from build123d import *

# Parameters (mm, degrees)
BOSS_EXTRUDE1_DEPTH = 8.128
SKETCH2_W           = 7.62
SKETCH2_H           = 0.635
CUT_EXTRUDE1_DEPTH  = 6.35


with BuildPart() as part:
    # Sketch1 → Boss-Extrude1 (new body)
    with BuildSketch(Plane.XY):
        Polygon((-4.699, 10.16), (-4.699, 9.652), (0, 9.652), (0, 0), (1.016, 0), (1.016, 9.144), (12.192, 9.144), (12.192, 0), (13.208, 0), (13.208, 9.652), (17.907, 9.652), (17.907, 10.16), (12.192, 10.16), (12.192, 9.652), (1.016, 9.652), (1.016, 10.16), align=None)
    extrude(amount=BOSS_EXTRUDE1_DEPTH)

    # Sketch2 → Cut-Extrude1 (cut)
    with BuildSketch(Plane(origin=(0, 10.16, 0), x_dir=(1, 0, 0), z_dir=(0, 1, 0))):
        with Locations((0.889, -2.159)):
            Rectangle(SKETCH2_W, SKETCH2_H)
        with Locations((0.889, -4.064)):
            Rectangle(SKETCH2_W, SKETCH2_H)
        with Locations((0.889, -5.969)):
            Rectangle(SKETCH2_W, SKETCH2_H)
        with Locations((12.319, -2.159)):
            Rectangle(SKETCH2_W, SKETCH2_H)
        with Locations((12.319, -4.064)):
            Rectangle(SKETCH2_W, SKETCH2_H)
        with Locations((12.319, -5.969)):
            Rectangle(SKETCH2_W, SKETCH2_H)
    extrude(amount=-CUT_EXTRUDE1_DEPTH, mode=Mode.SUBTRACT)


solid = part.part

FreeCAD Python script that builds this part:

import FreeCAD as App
import Part
import Sketcher
Q = App.Units.Quantity

doc = App.newDocument("Part")
body = doc.addObject("PartDesign::Body", "Body")

# Sketch on XY plane
sketch1 = body.newObject("Sketcher::SketchObject", "Sketch")
sketch1.AttachmentSupport = (doc.getObject("XY_Plane"), [""])
sketch1.MapMode = "FlatFace"
sketch1.addGeometry([
    Part.LineSegment(App.Vector(-4.699, 10.16, 0), App.Vector(-4.699, 9.652, 0)),  # 0
    Part.LineSegment(App.Vector(-4.699, 9.652, 0), App.Vector(0, 9.652, 0)),  # 1
    Part.LineSegment(App.Vector(0, 9.652, 0), App.Vector(0, 0, 0)),  # 2
    Part.LineSegment(App.Vector(0, 0, 0), App.Vector(1.016, 0, 0)),  # 3
    Part.LineSegment(App.Vector(1.016, 0, 0), App.Vector(1.016, 9.144, 0)),  # 4
    Part.LineSegment(App.Vector(1.016, 9.144, 0), App.Vector(12.192, 9.144, 0)),  # 5
    Part.LineSegment(App.Vector(12.192, 9.144, 0), App.Vector(12.192, 0, 0)),  # 6
    Part.LineSegment(App.Vector(12.192, 0, 0), App.Vector(13.208, 0, 0)),  # 7
    Part.LineSegment(App.Vector(13.208, 0, 0), App.Vector(13.208, 9.652, 0)),  # 8
    Part.LineSegment(App.Vector(13.208, 9.652, 0), App.Vector(17.907, 9.652, 0)),  # 9
    Part.LineSegment(App.Vector(17.907, 9.652, 0), App.Vector(17.907, 10.16, 0)),  # 10
    Part.LineSegment(App.Vector(17.907, 10.16, 0), App.Vector(12.192, 10.16, 0)),  # 11
    Part.LineSegment(App.Vector(12.192, 10.16, 0), App.Vector(12.192, 9.652, 0)),  # 12
    Part.LineSegment(App.Vector(12.192, 9.652, 0), App.Vector(1.016, 9.652, 0)),  # 13
    Part.LineSegment(App.Vector(1.016, 9.652, 0), App.Vector(1.016, 10.16, 0)),  # 14
    Part.LineSegment(App.Vector(1.016, 10.16, 0), App.Vector(-4.699, 10.16, 0)),  # 15
], False)
sketch1.addConstraint([
    Sketcher.Constraint("Coincident", 0, 2, 1, 1),
    Sketcher.Constraint("Coincident", 1, 2, 2, 1),
    Sketcher.Constraint("Coincident", 2, 2, 3, 1),
    Sketcher.Constraint("Coincident", 3, 2, 4, 1),
    Sketcher.Constraint("Coincident", 4, 2, 5, 1),
    Sketcher.Constraint("Coincident", 5, 2, 6, 1),
    Sketcher.Constraint("Coincident", 6, 2, 7, 1),
    Sketcher.Constraint("Coincident", 7, 2, 8, 1),
    Sketcher.Constraint("Coincident", 8, 2, 9, 1),
    Sketcher.Constraint("Coincident", 9, 2, 10, 1),
    Sketcher.Constraint("Coincident", 10, 2, 11, 1),
    Sketcher.Constraint("Coincident", 11, 2, 12, 1),
    Sketcher.Constraint("Coincident", 12, 2, 13, 1),
    Sketcher.Constraint("Coincident", 13, 2, 14, 1),
    Sketcher.Constraint("Coincident", 14, 2, 15, 1),
    Sketcher.Constraint("Coincident", 15, 2, 0, 1),
    Sketcher.Constraint("Vertical", 0),
    Sketcher.Constraint("Horizontal", 1),
    Sketcher.Constraint("Vertical", 2),
    Sketcher.Constraint("Horizontal", 3),
    Sketcher.Constraint("Vertical", 4),
    Sketcher.Constraint("Horizontal", 5),
    Sketcher.Constraint("Vertical", 6),
    Sketcher.Constraint("Horizontal", 7),
    Sketcher.Constraint("Vertical", 8),
    Sketcher.Constraint("Horizontal", 9),
    Sketcher.Constraint("Vertical", 10),
    Sketcher.Constraint("Horizontal", 11),
    Sketcher.Constraint("Vertical", 12),
    Sketcher.Constraint("Horizontal", 13),
    Sketcher.Constraint("Vertical", 14),
    Sketcher.Constraint("Horizontal", 15),
    Sketcher.Constraint("Coincident", 2, 2, -1, 1),
    Sketcher.Constraint("PointOnObject", 6, 2, -1),
    Sketcher.Constraint("Horizontal", 1, 2, 8, 2),
    Sketcher.Constraint("Horizontal", 9, 2, 12, 2),
    Sketcher.Constraint("Horizontal", 11, 2, 14, 2),
    Sketcher.Constraint("Vertical", 6, 2, 11, 2),
    Sketcher.Constraint("Vertical", 4, 2, 13, 2),
    Sketcher.Constraint("Equal", 3, 7),
    Sketcher.Constraint("Equal", 1, 9),
    Sketcher.Constraint("DistanceX", 3, 1, 3, 2, Q("0.04 in")),
    Sketcher.Constraint("DistanceX", 5, 1, 5, 2, Q("0.44 in")),
    Sketcher.Constraint("DistanceY", 0, 2, 0, 1, Q("0.02 in")),
    Sketcher.Constraint("DistanceY", 2, 2, 2, 1, Q("0.38 in")),
    Sketcher.Constraint("DistanceY", 4, 1, 4, 2, Q("0.36 in")),
    Sketcher.Constraint("DistanceX", 1, 1, 1, 2, Q("0.185 in")),
])
pad1 = body.newObject("PartDesign::Pad", "Pad")
pad1.Profile = sketch1
pad1.Length = Q("0.32 in")

# Sketch on XZ plane
sketch2 = body.newObject("Sketcher::SketchObject", "Sketch001")
sketch2.AttachmentSupport = (doc.getObject("XZ_Plane"), [""])
sketch2.MapMode = "FlatFace"
sketch2.AttachmentOffset = App.Placement(App.Vector(0, 0, -0.4 * 25.4), App.Rotation())
sketch2.addGeometry([
    Part.LineSegment(App.Vector(-2.921, 1.8415, 0), App.Vector(-2.921, 2.4765, 0)),  # 0
    Part.LineSegment(App.Vector(-2.921, 2.4765, 0), App.Vector(4.699, 2.4765, 0)),  # 1
    Part.LineSegment(App.Vector(4.699, 2.4765, 0), App.Vector(4.699, 1.8415, 0)),  # 2
    Part.LineSegment(App.Vector(4.699, 1.8415, 0), App.Vector(-2.921, 1.8415, 0)),  # 3
    Part.LineSegment(App.Vector(-2.921, 3.7465, 0), App.Vector(-2.921, 4.3815, 0)),  # 4
    Part.LineSegment(App.Vector(-2.921, 4.3815, 0), App.Vector(4.699, 4.3815, 0)),  # 5
    Part.LineSegment(App.Vector(4.699, 4.3815, 0), App.Vector(4.699, 3.7465, 0)),  # 6
    Part.LineSegment(App.Vector(4.699, 3.7465, 0), App.Vector(-2.921, 3.7465, 0)),  # 7
    Part.LineSegment(App.Vector(-2.921, 5.6515, 0), App.Vector(-2.921, 6.2865, 0)),  # 8
    Part.LineSegment(App.Vector(-2.921, 6.2865, 0), App.Vector(4.699, 6.2865, 0)),  # 9
    Part.LineSegment(App.Vector(4.699, 6.2865, 0), App.Vector(4.699, 5.6515, 0)),  # 10
    Part.LineSegment(App.Vector(4.699, 5.6515, 0), App.Vector(-2.921, 5.6515, 0)),  # 11
    Part.LineSegment(App.Vector(8.509, 1.8415, 0), App.Vector(8.509, 2.4765, 0)),  # 12
    Part.LineSegment(App.Vector(8.509, 2.4765, 0), App.Vector(16.129, 2.4765, 0)),  # 13
    Part.LineSegment(App.Vector(16.129, 2.4765, 0), App.Vector(16.129, 1.8415, 0)),  # 14
    Part.LineSegment(App.Vector(16.129, 1.8415, 0), App.Vector(8.509, 1.8415, 0)),  # 15
    Part.LineSegment(App.Vector(8.509, 3.7465, 0), App.Vector(8.509, 4.3815, 0)),  # 16
    Part.LineSegment(App.Vector(8.509, 4.3815, 0), App.Vector(16.129, 4.3815, 0)),  # 17
    Part.LineSegment(App.Vector(16.129, 4.3815, 0), App.Vector(16.129, 3.7465, 0)),  # 18
    Part.LineSegment(App.Vector(16.129, 3.7465, 0), App.Vector(8.509, 3.7465, 0)),  # 19
    Part.LineSegment(App.Vector(8.509, 5.6515, 0), App.Vector(8.509, 6.2865, 0)),  # 20
    Part.LineSegment(App.Vector(8.509, 6.2865, 0), App.Vector(16.129, 6.2865, 0)),  # 21
    Part.LineSegment(App.Vector(16.129, 6.2865, 0), App.Vector(16.129, 5.6515, 0)),  # 22
    Part.LineSegment(App.Vector(16.129, 5.6515, 0), App.Vector(8.509, 5.6515, 0)),  # 23
], False)
sketch2.addConstraint([
    Sketcher.Constraint("Coincident", 0, 2, 1, 1),
    Sketcher.Constraint("Coincident", 1, 2, 2, 1),
    Sketcher.Constraint("Coincident", 2, 2, 3, 1),
    Sketcher.Constraint("Coincident", 3, 2, 0, 1),
    Sketcher.Constraint("Coincident", 4, 2, 5, 1),
    Sketcher.Constraint("Coincident", 5, 2, 6, 1),
    Sketcher.Constraint("Coincident", 6, 2, 7, 1),
    Sketcher.Constraint("Coincident", 7, 2, 4, 1),
    Sketcher.Constraint("Coincident", 8, 2, 9, 1),
    Sketcher.Constraint("Coincident", 9, 2, 10, 1),
    Sketcher.Constraint("Coincident", 10, 2, 11, 1),
    Sketcher.Constraint("Coincident", 11, 2, 8, 1),
    Sketcher.Constraint("Coincident", 12, 2, 13, 1),
    Sketcher.Constraint("Coincident", 13, 2, 14, 1),
    Sketcher.Constraint("Coincident", 14, 2, 15, 1),
    Sketcher.Constraint("Coincident", 15, 2, 12, 1),
    Sketcher.Constraint("Coincident", 16, 2, 17, 1),
    Sketcher.Constraint("Coincident", 17, 2, 18, 1),
    Sketcher.Constraint("Coincident", 18, 2, 19, 1),
    Sketcher.Constraint("Coincident", 19, 2, 16, 1),
    Sketcher.Constraint("Coincident", 20, 2, 21, 1),
    Sketcher.Constraint("Coincident", 21, 2, 22, 1),
    Sketcher.Constraint("Coincident", 22, 2, 23, 1),
    Sketcher.Constraint("Coincident", 23, 2, 20, 1),
    Sketcher.Constraint("Vertical", 0),
    Sketcher.Constraint("Horizontal", 1),
    Sketcher.Constraint("Vertical", 2),
    Sketcher.Constraint("Horizontal", 3),
    Sketcher.Constraint("Vertical", 4),
    Sketcher.Constraint("Horizontal", 5),
    Sketcher.Constraint("Vertical", 6),
    Sketcher.Constraint("Horizontal", 7),
    Sketcher.Constraint("Vertical", 8),
    Sketcher.Constraint("Horizontal", 9),
    Sketcher.Constraint("Vertical", 10),
    Sketcher.Constraint("Horizontal", 11),
    Sketcher.Constraint("Vertical", 12),
    Sketcher.Constraint("Horizontal", 13),
    Sketcher.Constraint("Vertical", 14),
    Sketcher.Constraint("Horizontal", 15),
    Sketcher.Constraint("Vertical", 16),
    Sketcher.Constraint("Horizontal", 17),
    Sketcher.Constraint("Vertical", 18),
    Sketcher.Constraint("Horizontal", 19),
    Sketcher.Constraint("Vertical", 20),
    Sketcher.Constraint("Horizontal", 21),
    Sketcher.Constraint("Vertical", 22),
    Sketcher.Constraint("Horizontal", 23),
    Sketcher.Constraint("Horizontal", 1, 2, 12, 2),
    Sketcher.Constraint("Horizontal", 3, 2, 14, 2),
    Sketcher.Constraint("Horizontal", 5, 2, 16, 2),
    Sketcher.Constraint("Horizontal", 7, 2, 18, 2),
    Sketcher.Constraint("Horizontal", 9, 2, 20, 2),
    Sketcher.Constraint("Horizontal", 11, 2, 22, 2),
    Sketcher.Constraint("Vertical", 3, 2, 4, 2),
    Sketcher.Constraint("Vertical", 2, 2, 5, 2),
    Sketcher.Constraint("Vertical", 7, 2, 8, 2),
    Sketcher.Constraint("Vertical", 6, 2, 9, 2),
    Sketcher.Constraint("Vertical", 15, 2, 16, 2),
    Sketcher.Constraint("Vertical", 14, 2, 17, 2),
    Sketcher.Constraint("Vertical", 19, 2, 20, 2),
    Sketcher.Constraint("Vertical", 18, 2, 21, 2),
    Sketcher.Constraint("Equal", 11, 13),
    Sketcher.Constraint("Equal", 2, 4),
    Sketcher.Constraint("Equal", 6, 8),
    Sketcher.Constraint("DistanceX", 1, 1, 1, 2, Q("0.3 in")),
    Sketcher.Constraint("DistanceY", 3, 2, 4, 2, Q("0.1 in")),
    Sketcher.Constraint("DistanceY", 7, 2, 8, 2, Q("0.1 in")),
    Sketcher.Constraint("DistanceY", 0, 1, 0, 2, Q("0.025 in")),
    Sketcher.Constraint("DistanceX", 1, 2, 12, 2, Q("0.15 in")),
    Sketcher.Constraint("DistanceX", 0, 2, -1, 1, Q("0.115 in")),
    Sketcher.Constraint("DistanceY", -1, 1, 0, 2, Q("0.0975 in")),
])
pocket1 = body.newObject("PartDesign::Pocket", "Pocket")
pocket1.Profile = sketch2
pocket1.Length = Q("0.25 in")
pocket1.Reversed = True

doc.recompute()
